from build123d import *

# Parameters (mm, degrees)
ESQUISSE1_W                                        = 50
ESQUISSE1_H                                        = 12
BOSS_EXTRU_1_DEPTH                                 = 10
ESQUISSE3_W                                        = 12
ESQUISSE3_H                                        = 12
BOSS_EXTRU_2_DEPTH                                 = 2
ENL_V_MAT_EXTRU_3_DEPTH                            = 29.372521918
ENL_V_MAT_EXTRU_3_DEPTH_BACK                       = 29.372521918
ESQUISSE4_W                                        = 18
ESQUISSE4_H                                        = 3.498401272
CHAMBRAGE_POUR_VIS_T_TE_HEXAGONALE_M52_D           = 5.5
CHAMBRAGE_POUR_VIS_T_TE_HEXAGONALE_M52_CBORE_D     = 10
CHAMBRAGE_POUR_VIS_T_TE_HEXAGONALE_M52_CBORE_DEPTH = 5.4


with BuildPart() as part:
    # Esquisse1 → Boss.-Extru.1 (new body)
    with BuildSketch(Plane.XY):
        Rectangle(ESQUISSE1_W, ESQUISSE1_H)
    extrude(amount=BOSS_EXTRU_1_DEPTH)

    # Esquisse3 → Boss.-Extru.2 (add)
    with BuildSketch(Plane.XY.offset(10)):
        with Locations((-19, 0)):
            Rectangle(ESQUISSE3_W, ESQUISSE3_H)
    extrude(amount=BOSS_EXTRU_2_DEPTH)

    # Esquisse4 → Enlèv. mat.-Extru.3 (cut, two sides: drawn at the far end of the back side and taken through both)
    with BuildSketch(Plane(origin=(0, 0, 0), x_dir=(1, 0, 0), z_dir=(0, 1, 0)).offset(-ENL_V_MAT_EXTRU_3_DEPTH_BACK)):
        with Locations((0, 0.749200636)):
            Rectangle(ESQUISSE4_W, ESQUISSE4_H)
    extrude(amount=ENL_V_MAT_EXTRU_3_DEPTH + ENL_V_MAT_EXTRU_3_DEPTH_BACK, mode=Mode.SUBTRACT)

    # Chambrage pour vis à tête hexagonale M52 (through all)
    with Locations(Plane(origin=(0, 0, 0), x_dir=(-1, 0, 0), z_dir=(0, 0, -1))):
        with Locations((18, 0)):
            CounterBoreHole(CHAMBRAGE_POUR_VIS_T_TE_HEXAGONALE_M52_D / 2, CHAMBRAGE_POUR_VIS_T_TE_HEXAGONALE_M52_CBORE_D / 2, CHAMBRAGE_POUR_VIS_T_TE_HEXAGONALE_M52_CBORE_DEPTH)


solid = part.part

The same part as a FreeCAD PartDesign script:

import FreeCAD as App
import Part
import Sketcher

V = App.Vector


def add_polygon(sketch, points):
    """Adds a closed chain of lines whose ends are joined by coincident constraints."""
    first, n = sketch.GeometryCount, len(points)
    for a, b in zip(points, points[1:] + points[:1]):
        sketch.addGeometry(Part.LineSegment(App.Vector(*a, 0), App.Vector(*b, 0)), False)
    for i in range(n):
        sketch.addConstraint(Sketcher.Constraint("Coincident", first + i, 2, first + (i + 1) % n, 1))

doc = App.newDocument("Part")
body = doc.addObject("PartDesign::Body", "Body")

sketch1 = body.newObject("Sketcher::SketchObject", "Sketch")
sketch1.AttachmentSupport = (doc.getObject("XY_Plane"), [""])
sketch1.MapMode = "FlatFace"
add_polygon(sketch1, [(-25, 6), (-25, -6), (25, -6), (25, 6)])
sketch1.addConstraint([
    Sketcher.Constraint("Vertical", 0),
    Sketcher.Constraint("Horizontal", 1),
    Sketcher.Constraint("Vertical", 2),
    Sketcher.Constraint("Horizontal", 3),
    Sketcher.Constraint("Symmetric", 0, 2, 2, 2, -1, 1),
    Sketcher.Constraint("DistanceX", 1, 1, 1, 2, 50.0),
    Sketcher.Constraint("DistanceY", 0, 2, 0, 1, 12.0),
])
pad1 = body.newObject("PartDesign::Pad", "Pad")
pad1.Profile = sketch1
pad1.Length = 10

sketch2 = body.newObject("Sketcher::SketchObject", "Sketch001")
sketch2.AttachmentSupport = (doc.getObject("XY_Plane"), [""])
sketch2.MapMode = "FlatFace"
sketch2.AttachmentOffset = App.Placement(V(0, 0, 10), App.Rotation())
add_polygon(sketch2, [(-25, 6), (-25, -6), (-13, -6), (-13, 6)])
sketch2.addConstraint([
    Sketcher.Constraint("Vertical", 0),
    Sketcher.Constraint("Horizontal", 1),
    Sketcher.Constraint("Vertical", 2),
    Sketcher.Constraint("Horizontal", 3),
    Sketcher.Constraint("Equal", 3, 0),
    Sketcher.Constraint("DistanceX", 1, 1, 1, 2, 12.0),
    Sketcher.Constraint("DistanceX", 0, 2, -1, 1, 25.0),
    Sketcher.Constraint("DistanceY", 0, 2, -1, 1, 6.0),
])
pad2 = body.newObject("PartDesign::Pad", "Pad001")
pad2.Profile = sketch2
pad2.Length = 2

sketch3 = body.newObject("Sketcher::SketchObject", "Sketch002")
sketch3.AttachmentSupport = (doc.getObject("XZ_Plane"), [""])
sketch3.MapMode = "FlatFace"
add_polygon(sketch3, [(-9, -2.498401), (-9, 1), (9, 1), (9, -2.498401)])
sketch3.addConstraint([
    Sketcher.Constraint("Vertical", 0),
    Sketcher.Constraint("Horizontal", 1),
    Sketcher.Constraint("Vertical", 2),
    Sketcher.Constraint("Horizontal", 3),
    Sketcher.Constraint("DistanceX", 1, 1, 1, 2, 18.0),
    Sketcher.Constraint("DistanceX", 0, 2, -1, 1, 9.0),
    Sketcher.Constraint("DistanceY", -1, 1, 0, 2, 1.0),
    Sketcher.Constraint("DistanceY", 0, 1, 0, 2, 3.498401),
])
pocket1 = body.newObject("PartDesign::Pocket", "Pocket")
pocket1.Profile = sketch3
pocket1.Type = "ThroughAll"
pocket1.Midplane = True

sketch4 = body.newObject("Sketcher::SketchObject", "Sketch003")
sketch4.AttachmentSupport = (doc.getObject("XY_Plane"), [""])
sketch4.MapMode = "FlatFace"
sketch4.addGeometry(Part.Circle(V(-18, 0, 0), V(0, 0, 1), 2.75), False)
sketch4.addConstraint([
    Sketcher.Constraint("PointOnObject", 0, 3, -1),
    Sketcher.Constraint("Diameter", 0, 5.5),
    Sketcher.Constraint("DistanceX", 0, 3, -1, 1, 18.0),
])
doc.recompute()
hole = body.newObject("PartDesign::Hole", "Hole")
hole.Profile = sketch4
hole.ThreadType = "None"
hole.Diameter = 5.5
hole.DepthType = "ThroughAll"
hole.HoleCutType = "Counterbore"
hole.HoleCutDiameter = 10
hole.HoleCutDepth = 5.4
hole.Reversed = True

doc.recompute()
